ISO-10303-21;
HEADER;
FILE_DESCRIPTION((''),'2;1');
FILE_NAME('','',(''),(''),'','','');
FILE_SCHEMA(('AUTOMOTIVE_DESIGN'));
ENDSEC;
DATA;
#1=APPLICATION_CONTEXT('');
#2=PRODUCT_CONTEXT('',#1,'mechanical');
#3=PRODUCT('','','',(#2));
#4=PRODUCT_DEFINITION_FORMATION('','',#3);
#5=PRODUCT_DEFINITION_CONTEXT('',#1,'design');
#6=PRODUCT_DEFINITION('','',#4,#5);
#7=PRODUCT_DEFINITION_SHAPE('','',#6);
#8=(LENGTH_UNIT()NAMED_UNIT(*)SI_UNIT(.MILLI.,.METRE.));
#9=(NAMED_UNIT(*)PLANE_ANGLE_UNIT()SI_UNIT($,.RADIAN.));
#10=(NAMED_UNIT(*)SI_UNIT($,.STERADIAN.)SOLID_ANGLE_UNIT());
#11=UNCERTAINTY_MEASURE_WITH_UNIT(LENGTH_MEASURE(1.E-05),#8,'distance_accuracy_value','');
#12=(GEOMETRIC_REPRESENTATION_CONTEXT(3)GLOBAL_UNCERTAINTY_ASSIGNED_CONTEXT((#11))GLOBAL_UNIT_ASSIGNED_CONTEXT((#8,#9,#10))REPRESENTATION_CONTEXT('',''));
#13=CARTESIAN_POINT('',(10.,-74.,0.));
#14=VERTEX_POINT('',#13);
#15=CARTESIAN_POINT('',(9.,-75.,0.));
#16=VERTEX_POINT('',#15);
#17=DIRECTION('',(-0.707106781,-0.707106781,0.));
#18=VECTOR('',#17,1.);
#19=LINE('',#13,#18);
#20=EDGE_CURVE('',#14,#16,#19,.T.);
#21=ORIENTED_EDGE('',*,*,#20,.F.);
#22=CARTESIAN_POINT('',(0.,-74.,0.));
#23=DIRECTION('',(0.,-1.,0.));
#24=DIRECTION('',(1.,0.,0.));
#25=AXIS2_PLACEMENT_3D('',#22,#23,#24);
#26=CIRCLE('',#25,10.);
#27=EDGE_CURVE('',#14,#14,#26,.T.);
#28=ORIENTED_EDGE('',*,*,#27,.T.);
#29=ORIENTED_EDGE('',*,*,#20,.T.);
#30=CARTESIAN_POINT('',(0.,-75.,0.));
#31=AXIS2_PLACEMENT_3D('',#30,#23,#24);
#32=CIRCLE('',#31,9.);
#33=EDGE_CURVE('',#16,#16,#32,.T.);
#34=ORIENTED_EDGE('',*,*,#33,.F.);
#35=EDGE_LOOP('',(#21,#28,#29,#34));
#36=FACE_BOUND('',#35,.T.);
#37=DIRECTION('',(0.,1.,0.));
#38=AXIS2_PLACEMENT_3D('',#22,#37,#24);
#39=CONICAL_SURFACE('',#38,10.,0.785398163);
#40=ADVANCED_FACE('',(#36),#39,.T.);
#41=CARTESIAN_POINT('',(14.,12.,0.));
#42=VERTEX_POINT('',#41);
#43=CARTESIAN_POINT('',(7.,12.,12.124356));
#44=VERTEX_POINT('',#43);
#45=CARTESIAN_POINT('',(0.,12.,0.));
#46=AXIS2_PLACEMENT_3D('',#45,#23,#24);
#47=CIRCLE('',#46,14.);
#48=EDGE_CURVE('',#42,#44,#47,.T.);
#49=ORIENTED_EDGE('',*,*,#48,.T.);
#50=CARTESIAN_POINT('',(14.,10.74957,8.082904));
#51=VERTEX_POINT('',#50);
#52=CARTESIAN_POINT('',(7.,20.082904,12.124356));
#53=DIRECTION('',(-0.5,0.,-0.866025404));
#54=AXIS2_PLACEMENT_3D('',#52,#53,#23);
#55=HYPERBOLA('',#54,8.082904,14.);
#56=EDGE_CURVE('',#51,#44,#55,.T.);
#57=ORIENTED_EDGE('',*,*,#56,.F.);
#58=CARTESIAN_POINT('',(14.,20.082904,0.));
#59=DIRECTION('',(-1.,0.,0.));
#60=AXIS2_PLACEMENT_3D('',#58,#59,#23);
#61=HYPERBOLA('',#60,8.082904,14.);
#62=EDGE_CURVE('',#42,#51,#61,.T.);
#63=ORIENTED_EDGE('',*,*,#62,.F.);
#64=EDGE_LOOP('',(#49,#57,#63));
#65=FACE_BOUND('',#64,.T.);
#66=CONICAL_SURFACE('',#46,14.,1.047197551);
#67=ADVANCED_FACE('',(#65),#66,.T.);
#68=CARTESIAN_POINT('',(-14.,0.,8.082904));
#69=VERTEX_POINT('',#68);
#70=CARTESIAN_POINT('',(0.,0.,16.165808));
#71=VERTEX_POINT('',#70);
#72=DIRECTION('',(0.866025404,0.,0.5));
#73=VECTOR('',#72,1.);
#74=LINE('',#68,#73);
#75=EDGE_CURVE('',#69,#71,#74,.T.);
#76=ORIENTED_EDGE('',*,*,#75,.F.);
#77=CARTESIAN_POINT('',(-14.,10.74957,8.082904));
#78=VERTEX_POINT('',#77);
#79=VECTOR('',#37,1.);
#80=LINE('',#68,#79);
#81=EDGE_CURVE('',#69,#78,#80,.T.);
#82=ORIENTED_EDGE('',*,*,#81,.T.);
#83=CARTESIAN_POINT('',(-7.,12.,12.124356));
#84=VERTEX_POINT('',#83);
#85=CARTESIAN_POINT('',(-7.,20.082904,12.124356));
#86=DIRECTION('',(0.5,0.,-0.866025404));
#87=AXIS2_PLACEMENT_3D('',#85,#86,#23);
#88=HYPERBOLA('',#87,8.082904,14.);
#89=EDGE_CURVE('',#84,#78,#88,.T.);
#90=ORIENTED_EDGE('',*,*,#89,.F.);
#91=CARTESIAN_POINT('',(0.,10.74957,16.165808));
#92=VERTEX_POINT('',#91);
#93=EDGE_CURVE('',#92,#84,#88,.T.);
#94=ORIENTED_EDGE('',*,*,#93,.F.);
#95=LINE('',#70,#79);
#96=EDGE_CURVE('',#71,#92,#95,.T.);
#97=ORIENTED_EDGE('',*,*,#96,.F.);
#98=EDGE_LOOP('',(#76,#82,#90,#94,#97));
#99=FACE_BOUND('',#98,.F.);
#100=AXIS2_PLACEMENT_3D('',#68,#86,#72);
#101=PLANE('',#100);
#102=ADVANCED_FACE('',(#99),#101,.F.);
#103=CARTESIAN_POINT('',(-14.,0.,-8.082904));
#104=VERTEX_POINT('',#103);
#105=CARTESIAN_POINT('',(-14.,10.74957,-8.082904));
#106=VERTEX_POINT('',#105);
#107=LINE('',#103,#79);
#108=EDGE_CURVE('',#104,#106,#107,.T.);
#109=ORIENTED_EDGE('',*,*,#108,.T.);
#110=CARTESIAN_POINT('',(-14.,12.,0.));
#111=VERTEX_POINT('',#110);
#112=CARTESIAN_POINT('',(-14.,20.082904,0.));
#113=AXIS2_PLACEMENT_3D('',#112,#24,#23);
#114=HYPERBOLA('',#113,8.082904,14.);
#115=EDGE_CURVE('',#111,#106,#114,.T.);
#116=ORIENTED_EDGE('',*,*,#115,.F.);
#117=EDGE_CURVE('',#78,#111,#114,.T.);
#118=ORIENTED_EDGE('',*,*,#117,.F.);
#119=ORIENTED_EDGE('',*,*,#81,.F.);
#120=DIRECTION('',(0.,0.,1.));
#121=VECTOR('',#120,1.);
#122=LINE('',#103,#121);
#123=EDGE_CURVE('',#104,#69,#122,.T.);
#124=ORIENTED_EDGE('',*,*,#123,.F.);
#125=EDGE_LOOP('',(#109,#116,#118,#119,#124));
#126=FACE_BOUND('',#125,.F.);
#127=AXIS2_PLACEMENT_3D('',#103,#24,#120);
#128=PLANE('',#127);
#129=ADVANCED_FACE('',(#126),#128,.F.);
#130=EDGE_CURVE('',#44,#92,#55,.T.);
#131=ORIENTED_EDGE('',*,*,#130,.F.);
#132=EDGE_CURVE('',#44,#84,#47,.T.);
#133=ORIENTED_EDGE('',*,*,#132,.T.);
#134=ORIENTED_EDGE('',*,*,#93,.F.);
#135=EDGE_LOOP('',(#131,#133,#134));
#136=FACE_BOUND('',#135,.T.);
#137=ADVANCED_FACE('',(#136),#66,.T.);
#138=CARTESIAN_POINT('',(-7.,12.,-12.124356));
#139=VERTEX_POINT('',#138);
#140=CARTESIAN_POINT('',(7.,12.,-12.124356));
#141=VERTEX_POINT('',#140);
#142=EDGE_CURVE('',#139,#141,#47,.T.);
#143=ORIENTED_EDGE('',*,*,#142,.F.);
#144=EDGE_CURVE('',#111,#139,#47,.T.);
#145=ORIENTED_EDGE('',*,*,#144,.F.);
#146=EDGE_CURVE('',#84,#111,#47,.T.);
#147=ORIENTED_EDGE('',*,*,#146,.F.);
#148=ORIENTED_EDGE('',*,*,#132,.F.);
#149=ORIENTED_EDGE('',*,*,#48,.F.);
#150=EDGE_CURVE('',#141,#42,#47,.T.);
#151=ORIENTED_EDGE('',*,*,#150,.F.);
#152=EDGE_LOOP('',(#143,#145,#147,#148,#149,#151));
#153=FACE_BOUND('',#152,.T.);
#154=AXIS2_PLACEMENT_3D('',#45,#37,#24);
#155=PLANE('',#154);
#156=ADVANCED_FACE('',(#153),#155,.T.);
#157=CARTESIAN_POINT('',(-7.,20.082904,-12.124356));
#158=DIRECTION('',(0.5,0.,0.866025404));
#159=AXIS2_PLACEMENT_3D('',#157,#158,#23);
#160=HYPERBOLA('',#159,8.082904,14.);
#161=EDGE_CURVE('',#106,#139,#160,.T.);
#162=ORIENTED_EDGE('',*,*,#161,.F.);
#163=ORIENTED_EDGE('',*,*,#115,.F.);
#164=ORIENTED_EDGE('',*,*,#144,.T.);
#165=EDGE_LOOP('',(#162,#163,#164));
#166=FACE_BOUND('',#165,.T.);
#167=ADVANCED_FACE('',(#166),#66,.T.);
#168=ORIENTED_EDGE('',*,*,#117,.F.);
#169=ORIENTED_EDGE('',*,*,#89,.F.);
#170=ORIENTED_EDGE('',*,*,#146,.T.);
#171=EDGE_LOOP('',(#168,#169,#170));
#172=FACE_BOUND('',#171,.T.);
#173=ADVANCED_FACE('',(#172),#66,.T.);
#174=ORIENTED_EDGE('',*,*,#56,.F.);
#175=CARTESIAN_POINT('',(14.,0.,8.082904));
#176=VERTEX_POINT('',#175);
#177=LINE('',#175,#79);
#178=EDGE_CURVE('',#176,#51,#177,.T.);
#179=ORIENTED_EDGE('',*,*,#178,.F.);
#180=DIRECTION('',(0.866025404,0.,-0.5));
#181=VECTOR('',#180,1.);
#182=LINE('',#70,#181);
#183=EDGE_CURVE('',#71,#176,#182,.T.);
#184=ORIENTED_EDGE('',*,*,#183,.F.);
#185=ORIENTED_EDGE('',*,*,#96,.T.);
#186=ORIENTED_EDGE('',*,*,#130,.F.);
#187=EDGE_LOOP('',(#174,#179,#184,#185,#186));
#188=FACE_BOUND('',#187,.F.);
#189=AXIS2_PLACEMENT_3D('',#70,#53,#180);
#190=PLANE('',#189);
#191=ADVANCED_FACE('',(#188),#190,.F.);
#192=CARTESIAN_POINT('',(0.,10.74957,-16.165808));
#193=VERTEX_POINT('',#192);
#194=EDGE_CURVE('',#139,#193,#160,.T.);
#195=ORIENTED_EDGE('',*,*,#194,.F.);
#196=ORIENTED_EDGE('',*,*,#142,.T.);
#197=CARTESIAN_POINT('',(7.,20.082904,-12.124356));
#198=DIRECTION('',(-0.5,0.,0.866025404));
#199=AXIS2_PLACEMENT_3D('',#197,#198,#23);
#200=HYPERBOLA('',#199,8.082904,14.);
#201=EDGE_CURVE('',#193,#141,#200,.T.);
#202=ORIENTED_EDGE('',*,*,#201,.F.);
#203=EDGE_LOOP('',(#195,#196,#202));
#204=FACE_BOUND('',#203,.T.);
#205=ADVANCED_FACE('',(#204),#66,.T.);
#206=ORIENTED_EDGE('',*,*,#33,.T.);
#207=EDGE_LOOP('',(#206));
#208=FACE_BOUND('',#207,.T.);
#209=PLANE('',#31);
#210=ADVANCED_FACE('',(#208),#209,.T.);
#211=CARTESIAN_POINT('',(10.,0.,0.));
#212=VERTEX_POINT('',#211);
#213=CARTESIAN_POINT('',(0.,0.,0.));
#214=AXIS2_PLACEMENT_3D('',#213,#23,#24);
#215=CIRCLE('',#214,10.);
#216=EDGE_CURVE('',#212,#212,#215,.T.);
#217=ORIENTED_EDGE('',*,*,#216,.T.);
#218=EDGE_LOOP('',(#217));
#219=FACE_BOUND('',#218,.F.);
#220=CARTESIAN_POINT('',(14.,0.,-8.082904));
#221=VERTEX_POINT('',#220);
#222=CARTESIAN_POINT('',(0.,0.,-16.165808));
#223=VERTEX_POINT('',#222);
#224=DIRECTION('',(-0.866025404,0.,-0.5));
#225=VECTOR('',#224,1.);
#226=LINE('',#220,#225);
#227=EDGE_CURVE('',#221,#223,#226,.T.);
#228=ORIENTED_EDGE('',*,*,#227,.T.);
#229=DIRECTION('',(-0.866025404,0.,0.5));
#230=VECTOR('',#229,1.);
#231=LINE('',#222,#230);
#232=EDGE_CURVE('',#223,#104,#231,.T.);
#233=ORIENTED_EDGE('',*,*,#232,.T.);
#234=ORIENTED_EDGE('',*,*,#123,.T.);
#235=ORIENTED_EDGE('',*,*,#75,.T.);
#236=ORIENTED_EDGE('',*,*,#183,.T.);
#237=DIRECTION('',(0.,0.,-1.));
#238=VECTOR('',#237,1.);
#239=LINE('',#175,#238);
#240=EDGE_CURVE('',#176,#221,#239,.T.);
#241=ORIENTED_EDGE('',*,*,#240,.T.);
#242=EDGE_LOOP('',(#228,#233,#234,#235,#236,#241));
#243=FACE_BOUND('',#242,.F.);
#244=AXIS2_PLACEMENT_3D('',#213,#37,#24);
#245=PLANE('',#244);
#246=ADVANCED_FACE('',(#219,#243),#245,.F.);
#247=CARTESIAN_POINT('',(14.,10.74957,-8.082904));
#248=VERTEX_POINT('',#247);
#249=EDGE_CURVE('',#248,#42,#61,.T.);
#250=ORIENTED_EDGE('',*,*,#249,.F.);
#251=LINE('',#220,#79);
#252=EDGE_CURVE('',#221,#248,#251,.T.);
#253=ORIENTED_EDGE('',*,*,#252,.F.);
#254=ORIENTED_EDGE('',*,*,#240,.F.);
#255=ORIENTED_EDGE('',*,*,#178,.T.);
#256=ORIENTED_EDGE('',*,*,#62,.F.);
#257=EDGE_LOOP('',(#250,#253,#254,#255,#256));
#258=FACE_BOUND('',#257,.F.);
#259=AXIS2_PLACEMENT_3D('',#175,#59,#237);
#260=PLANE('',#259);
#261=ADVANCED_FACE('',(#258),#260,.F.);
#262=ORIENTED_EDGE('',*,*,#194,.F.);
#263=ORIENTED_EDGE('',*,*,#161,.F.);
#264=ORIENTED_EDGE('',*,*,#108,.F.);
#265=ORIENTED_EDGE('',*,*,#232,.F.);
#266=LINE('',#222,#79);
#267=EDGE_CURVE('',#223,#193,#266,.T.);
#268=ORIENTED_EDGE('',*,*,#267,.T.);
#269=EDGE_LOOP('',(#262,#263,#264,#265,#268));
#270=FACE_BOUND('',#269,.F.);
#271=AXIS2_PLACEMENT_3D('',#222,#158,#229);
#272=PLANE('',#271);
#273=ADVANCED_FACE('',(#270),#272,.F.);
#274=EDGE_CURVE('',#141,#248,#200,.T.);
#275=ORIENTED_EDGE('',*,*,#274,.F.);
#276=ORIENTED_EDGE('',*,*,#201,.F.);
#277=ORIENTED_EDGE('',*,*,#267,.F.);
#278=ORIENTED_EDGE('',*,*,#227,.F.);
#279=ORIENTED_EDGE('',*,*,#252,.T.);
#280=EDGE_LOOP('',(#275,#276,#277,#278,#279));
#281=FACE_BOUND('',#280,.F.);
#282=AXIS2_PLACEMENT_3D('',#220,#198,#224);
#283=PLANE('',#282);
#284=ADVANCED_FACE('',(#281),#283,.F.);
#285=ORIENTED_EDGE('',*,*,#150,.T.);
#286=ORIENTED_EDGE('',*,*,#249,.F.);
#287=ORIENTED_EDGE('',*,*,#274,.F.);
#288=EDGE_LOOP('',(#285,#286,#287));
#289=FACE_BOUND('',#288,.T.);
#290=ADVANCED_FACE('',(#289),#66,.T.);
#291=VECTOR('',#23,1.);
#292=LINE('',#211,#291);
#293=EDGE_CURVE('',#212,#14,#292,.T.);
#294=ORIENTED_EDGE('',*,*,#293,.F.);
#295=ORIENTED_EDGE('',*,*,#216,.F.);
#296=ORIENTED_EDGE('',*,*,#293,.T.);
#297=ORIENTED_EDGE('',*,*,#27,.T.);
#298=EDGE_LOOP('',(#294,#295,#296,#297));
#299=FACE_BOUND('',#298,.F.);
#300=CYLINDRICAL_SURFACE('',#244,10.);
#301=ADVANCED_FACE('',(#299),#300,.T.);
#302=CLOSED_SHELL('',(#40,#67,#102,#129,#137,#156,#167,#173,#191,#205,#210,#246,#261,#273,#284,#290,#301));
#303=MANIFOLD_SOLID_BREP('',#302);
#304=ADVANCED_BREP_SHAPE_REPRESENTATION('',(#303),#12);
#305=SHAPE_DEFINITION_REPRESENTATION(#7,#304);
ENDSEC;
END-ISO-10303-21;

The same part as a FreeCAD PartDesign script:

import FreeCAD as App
import Part
import Sketcher
Q = App.Units.Quantity


def edges_at(feature, points):
    """Names of the edges that pass closest to the given points."""
    edges = feature.Shape.Edges
    near = lambda p: min(range(len(edges)), key=lambda i: edges[i].distToShape(Part.Vertex(*p))[0])
    return sorted({f"Edge{near(p) + 1}" for p in points})

doc = App.newDocument("Part")
params = doc.addObject("Spreadsheet::Sheet", "Params")
for row, (alias, value) in enumerate([
    ("pad1_length", "12 mm"),
    ("sketch2_diameter", "28 mm"),
    ("pocket1_length", "12 mm"),
    ("pocket1_taper", "60 deg"),
    ("sketch3_diameter", "20 mm"),
    ("pad2_length", "75 mm"),
    ("chamfer_size", "1 mm"),
], start=1):
    params.set(f"A{row}", alias)
    params.set(f"B{row}", "=" + value)
    params.setAlias(f"B{row}", alias)

body = doc.addObject("PartDesign::Body", "Body")

# Sketch on XZ plane
sketch1 = body.newObject("Sketcher::SketchObject", "Sketch")
sketch1.AttachmentSupport = (doc.getObject("XZ_Plane"), [""])
sketch1.MapMode = "FlatFace"
sketch1.addGeometry([
    Part.LineSegment(App.Vector(0, 16, 0), App.Vector(14, 8, 0)),  # 0
    Part.LineSegment(App.Vector(14, 8, 0), App.Vector(14, -8, 0)),  # 1
    Part.LineSegment(App.Vector(14, -8, 0), App.Vector(0, -16, 0)),  # 2
    Part.LineSegment(App.Vector(0, -16, 0), App.Vector(-14, -8, 0)),  # 3
    Part.LineSegment(App.Vector(-14, -8, 0), App.Vector(-14, 8, 0)),  # 4
    Part.LineSegment(App.Vector(-14, 8, 0), App.Vector(0, 16, 0)),  # 5
], False)
sketch1.addConstraint([
    Sketcher.Constraint("Coincident", 0, 2, 1, 1),
    Sketcher.Constraint("Coincident", 1, 2, 2, 1),
    Sketcher.Constraint("Coincident", 2, 2, 3, 1),
    Sketcher.Constraint("Coincident", 3, 2, 4, 1),
    Sketcher.Constraint("Coincident", 4, 2, 5, 1),
    Sketcher.Constraint("Coincident", 5, 2, 0, 1),
    Sketcher.Constraint("Vertical", 1),
    Sketcher.Constraint("Vertical", 4),
    Sketcher.Constraint("Symmetric", 0, 2, 3, 2, -1, 1),
    Sketcher.Constraint("Symmetric", 2, 2, 5, 2, -1, 1),
    Sketcher.Constraint("PointOnObject", 2, 2, -2),
    Sketcher.Constraint("Parallel", 2, 5),
    Sketcher.Constraint("Horizontal", 1, 2, 3, 2),
    Sketcher.Constraint("Angle", 0, Q("-30 deg")),
    Sketcher.Constraint("DistanceX", -1, 1, 0, 2, 14.0),
    Sketcher.Constraint("DistanceY", 1, 2, 1, 1, 16.165808),
])
pad1 = body.newObject("PartDesign::Pad", "Pad")
pad1.Profile = sketch1
pad1.setExpression("Length", "Params.pad1_length")
pad1.Reversed = True

# Sketch on XZ plane
sketch2 = body.newObject("Sketcher::SketchObject", "Sketch001")
sketch2.AttachmentSupport = (doc.getObject("XZ_Plane"), [""])
sketch2.MapMode = "FlatFace"
sketch2.AttachmentOffset = App.Placement(App.Vector(0, 0, -12), App.Rotation())
sketch2.addGeometry([
    Part.LineSegment(App.Vector(-40, -42, 0), App.Vector(-40, 42, 0)),  # 0
    Part.LineSegment(App.Vector(-40, 42, 0), App.Vector(40, 42, 0)),  # 1
    Part.LineSegment(App.Vector(40, 42, 0), App.Vector(40, -42, 0)),  # 2
    Part.LineSegment(App.Vector(40, -42, 0), App.Vector(-40, -42, 0)),  # 3
    Part.Circle(App.Vector(0, 0, 0), App.Vector(0, 0, 1), 14),  # 4
], False)
sketch2.addConstraint([
    Sketcher.Constraint("Coincident", 0, 2, 1, 1),
    Sketcher.Constraint("Coincident", 1, 2, 2, 1),
    Sketcher.Constraint("Coincident", 2, 2, 3, 1),
    Sketcher.Constraint("Coincident", 3, 2, 0, 1),
    Sketcher.Constraint("Vertical", 0),
    Sketcher.Constraint("Horizontal", 1),
    Sketcher.Constraint("Vertical", 2),
    Sketcher.Constraint("Horizontal", 3),
    Sketcher.Constraint("Coincident", 4, 3, -1, 1),
    Sketcher.Constraint("Symmetric", 0, 2, 2, 2, -1, 1),
    Sketcher.Constraint("Diameter", 4, 28.0),
    Sketcher.Constraint("DistanceX", 1, 1, 1, 2, 80.454),
    Sketcher.Constraint("DistanceY", 0, 1, 0, 2, 84.786),
])
sketch2.setExpression("Constraints[10]", "Params.sketch2_diameter")
pocket1 = body.newObject("PartDesign::Pocket", "Pocket")
pocket1.Profile = sketch2
pocket1.setExpression("Length", "Params.pocket1_length")
pocket1.Reversed = True
pocket1.setExpression("TaperAngle", "Params.pocket1_taper")

# Sketch on XZ plane
sketch3 = body.newObject("Sketcher::SketchObject", "Sketch002")
sketch3.AttachmentSupport = (doc.getObject("XZ_Plane"), [""])
sketch3.MapMode = "FlatFace"
sketch3.addGeometry(Part.Circle(App.Vector(0, 0, 0), App.Vector(0, 0, 1), 10), False)
sketch3.addConstraint([
    Sketcher.Constraint("Coincident", 0, 3, -1, 1),
    Sketcher.Constraint("Diameter", 0, 20.0),
])
sketch3.setExpression("Constraints[1]", "Params.sketch3_diameter")
pad2 = body.newObject("PartDesign::Pad", "Pad001")
pad2.Profile = sketch3
pad2.setExpression("Length", "Params.pad2_length")
doc.recompute()

chamfer = body.newObject("PartDesign::Chamfer", "Chamfer")
chamfer.Base = (pad2, edges_at(pad2, [(-10, -75, 0)]))
chamfer.setExpression("Size", "Params.chamfer_size")

doc.recompute()
